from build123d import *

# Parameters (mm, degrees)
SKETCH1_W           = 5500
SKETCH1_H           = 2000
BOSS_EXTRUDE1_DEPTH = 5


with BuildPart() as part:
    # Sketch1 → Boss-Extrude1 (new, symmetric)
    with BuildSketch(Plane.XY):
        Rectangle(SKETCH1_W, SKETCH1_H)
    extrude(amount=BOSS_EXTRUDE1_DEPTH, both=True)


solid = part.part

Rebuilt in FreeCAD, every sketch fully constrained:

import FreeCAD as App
import Part
import Sketcher


def add_polygon(sketch, points):
    """Adds a closed chain of lines whose ends are joined by coincident constraints."""
    first, n = sketch.GeometryCount, len(points)
    for a, b in zip(points, points[1:] + points[:1]):
        sketch.addGeometry(Part.LineSegment(App.Vector(*a, 0), App.Vector(*b, 0)), False)
    for i in range(n):
        sketch.addConstraint(Sketcher.Constraint("Coincident", first + i, 2, first + (i + 1) % n, 1))

doc = App.newDocument("Part")
body = doc.addObject("PartDesign::Body", "Body")

# Sketch on XY plane
sketch1 = doc.addObject("Sketcher::SketchObject", "Sketch")
body.addObject(sketch1)
sketch1.AttachmentSupport = (doc.XY_Plane, [""])
sketch1.MapMode = "FlatFace"
add_polygon(sketch1, [(-2750, 1000), (-2750, -1000), (2750, -1000), (2750, 1000)])  # lines 0-3
sketch1.addConstraint([
    Sketcher.Constraint("Vertical", 0),
    Sketcher.Constraint("Horizontal", 1),
    Sketcher.Constraint("Vertical", 2),
    Sketcher.Constraint("Horizontal", 3),
    Sketcher.Constraint("Symmetric", 0, 2, 2, 2, -1, 1),
    Sketcher.Constraint("DistanceX", 1, 1, 1, 2, 5500.0),
    Sketcher.Constraint("DistanceY", 0, 2, 0, 1, 2000.0),
])
pad1 = doc.addObject("PartDesign::Pad", "Pad")
body.addObject(pad1)
pad1.Profile = sketch1
pad1.Length = 10
pad1.Midplane = True

doc.recompute()
